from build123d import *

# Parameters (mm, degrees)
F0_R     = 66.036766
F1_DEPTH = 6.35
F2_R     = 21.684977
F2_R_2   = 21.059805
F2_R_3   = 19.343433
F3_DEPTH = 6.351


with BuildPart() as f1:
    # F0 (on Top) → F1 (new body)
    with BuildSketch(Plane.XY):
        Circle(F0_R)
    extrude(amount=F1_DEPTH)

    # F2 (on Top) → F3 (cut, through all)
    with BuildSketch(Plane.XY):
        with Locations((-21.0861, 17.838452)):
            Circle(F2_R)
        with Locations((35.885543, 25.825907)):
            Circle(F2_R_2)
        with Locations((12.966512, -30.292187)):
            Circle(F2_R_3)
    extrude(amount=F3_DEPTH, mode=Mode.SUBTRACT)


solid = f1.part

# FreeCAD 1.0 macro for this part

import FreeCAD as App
import Part
import Sketcher

V = App.Vector
Q = App.Units.Quantity

doc = App.newDocument("Part")
body = doc.addObject("PartDesign::Body", "Body")

# Sketch on XY plane
sketch1 = body.newObject("Sketcher::SketchObject", "Sketch")
sketch1.AttachmentSupport = (doc.getObject("XY_Plane"), [""])
sketch1.MapMode = "FlatFace"
sketch1.addGeometry(Part.Circle(V(0, 0, 0), V(0, 0, 1), 66), False)
sketch1.addConstraint(Sketcher.Constraint("Coincident", 0, 3, -1, 1))
sketch1.addConstraint(Sketcher.Constraint("Diameter", 0, 132.073532))
pad1 = body.newObject("PartDesign::Pad", "Pad")
pad1.Profile = sketch1
pad1.Length = Q("0.25 in")

# Sketch on XY plane
sketch2 = body.newObject("Sketcher::SketchObject", "Sketch001")
sketch2.AttachmentSupport = (doc.getObject("XY_Plane"), [""])
sketch2.MapMode = "FlatFace"
sketch2.addGeometry(Part.Circle(V(-21, 18, 0), V(0, 0, 1), 22), False)
sketch2.addGeometry(Part.Circle(V(36, 26, 0), V(0, 0, 1), 21), False)
sketch2.addGeometry(Part.Circle(V(13, -30, 0), V(0, 0, 1), 19), False)
sketch2.addConstraint(Sketcher.Constraint("Diameter", 1, 42.11961))
sketch2.addConstraint(Sketcher.Constraint("Diameter", 0, 43.369954))
sketch2.addConstraint(Sketcher.Constraint("Diameter", 2, 38.686866))
sketch2.addConstraint(Sketcher.Constraint("DistanceX", 0, 3, -1, 1, 21.0861))
sketch2.addConstraint(Sketcher.Constraint("DistanceY", -1, 1, 0, 3, 17.838452))
sketch2.addConstraint(Sketcher.Constraint("DistanceX", 0, 3, 2, 3, 34.052612))
sketch2.addConstraint(Sketcher.Constraint("DistanceY", 2, 3, 0, 3, 48.130639))
sketch2.addConstraint(Sketcher.Constraint("DistanceX", 2, 3, 1, 3, 22.919031))
sketch2.addConstraint(Sketcher.Constraint("DistanceY", -1, 1, 1, 3, 25.825907))
pocket1 = body.newObject("PartDesign::Pocket", "Pocket")
pocket1.Profile = sketch2
pocket1.Type = "ThroughAll"
pocket1.Reversed = True

doc.recompute()
